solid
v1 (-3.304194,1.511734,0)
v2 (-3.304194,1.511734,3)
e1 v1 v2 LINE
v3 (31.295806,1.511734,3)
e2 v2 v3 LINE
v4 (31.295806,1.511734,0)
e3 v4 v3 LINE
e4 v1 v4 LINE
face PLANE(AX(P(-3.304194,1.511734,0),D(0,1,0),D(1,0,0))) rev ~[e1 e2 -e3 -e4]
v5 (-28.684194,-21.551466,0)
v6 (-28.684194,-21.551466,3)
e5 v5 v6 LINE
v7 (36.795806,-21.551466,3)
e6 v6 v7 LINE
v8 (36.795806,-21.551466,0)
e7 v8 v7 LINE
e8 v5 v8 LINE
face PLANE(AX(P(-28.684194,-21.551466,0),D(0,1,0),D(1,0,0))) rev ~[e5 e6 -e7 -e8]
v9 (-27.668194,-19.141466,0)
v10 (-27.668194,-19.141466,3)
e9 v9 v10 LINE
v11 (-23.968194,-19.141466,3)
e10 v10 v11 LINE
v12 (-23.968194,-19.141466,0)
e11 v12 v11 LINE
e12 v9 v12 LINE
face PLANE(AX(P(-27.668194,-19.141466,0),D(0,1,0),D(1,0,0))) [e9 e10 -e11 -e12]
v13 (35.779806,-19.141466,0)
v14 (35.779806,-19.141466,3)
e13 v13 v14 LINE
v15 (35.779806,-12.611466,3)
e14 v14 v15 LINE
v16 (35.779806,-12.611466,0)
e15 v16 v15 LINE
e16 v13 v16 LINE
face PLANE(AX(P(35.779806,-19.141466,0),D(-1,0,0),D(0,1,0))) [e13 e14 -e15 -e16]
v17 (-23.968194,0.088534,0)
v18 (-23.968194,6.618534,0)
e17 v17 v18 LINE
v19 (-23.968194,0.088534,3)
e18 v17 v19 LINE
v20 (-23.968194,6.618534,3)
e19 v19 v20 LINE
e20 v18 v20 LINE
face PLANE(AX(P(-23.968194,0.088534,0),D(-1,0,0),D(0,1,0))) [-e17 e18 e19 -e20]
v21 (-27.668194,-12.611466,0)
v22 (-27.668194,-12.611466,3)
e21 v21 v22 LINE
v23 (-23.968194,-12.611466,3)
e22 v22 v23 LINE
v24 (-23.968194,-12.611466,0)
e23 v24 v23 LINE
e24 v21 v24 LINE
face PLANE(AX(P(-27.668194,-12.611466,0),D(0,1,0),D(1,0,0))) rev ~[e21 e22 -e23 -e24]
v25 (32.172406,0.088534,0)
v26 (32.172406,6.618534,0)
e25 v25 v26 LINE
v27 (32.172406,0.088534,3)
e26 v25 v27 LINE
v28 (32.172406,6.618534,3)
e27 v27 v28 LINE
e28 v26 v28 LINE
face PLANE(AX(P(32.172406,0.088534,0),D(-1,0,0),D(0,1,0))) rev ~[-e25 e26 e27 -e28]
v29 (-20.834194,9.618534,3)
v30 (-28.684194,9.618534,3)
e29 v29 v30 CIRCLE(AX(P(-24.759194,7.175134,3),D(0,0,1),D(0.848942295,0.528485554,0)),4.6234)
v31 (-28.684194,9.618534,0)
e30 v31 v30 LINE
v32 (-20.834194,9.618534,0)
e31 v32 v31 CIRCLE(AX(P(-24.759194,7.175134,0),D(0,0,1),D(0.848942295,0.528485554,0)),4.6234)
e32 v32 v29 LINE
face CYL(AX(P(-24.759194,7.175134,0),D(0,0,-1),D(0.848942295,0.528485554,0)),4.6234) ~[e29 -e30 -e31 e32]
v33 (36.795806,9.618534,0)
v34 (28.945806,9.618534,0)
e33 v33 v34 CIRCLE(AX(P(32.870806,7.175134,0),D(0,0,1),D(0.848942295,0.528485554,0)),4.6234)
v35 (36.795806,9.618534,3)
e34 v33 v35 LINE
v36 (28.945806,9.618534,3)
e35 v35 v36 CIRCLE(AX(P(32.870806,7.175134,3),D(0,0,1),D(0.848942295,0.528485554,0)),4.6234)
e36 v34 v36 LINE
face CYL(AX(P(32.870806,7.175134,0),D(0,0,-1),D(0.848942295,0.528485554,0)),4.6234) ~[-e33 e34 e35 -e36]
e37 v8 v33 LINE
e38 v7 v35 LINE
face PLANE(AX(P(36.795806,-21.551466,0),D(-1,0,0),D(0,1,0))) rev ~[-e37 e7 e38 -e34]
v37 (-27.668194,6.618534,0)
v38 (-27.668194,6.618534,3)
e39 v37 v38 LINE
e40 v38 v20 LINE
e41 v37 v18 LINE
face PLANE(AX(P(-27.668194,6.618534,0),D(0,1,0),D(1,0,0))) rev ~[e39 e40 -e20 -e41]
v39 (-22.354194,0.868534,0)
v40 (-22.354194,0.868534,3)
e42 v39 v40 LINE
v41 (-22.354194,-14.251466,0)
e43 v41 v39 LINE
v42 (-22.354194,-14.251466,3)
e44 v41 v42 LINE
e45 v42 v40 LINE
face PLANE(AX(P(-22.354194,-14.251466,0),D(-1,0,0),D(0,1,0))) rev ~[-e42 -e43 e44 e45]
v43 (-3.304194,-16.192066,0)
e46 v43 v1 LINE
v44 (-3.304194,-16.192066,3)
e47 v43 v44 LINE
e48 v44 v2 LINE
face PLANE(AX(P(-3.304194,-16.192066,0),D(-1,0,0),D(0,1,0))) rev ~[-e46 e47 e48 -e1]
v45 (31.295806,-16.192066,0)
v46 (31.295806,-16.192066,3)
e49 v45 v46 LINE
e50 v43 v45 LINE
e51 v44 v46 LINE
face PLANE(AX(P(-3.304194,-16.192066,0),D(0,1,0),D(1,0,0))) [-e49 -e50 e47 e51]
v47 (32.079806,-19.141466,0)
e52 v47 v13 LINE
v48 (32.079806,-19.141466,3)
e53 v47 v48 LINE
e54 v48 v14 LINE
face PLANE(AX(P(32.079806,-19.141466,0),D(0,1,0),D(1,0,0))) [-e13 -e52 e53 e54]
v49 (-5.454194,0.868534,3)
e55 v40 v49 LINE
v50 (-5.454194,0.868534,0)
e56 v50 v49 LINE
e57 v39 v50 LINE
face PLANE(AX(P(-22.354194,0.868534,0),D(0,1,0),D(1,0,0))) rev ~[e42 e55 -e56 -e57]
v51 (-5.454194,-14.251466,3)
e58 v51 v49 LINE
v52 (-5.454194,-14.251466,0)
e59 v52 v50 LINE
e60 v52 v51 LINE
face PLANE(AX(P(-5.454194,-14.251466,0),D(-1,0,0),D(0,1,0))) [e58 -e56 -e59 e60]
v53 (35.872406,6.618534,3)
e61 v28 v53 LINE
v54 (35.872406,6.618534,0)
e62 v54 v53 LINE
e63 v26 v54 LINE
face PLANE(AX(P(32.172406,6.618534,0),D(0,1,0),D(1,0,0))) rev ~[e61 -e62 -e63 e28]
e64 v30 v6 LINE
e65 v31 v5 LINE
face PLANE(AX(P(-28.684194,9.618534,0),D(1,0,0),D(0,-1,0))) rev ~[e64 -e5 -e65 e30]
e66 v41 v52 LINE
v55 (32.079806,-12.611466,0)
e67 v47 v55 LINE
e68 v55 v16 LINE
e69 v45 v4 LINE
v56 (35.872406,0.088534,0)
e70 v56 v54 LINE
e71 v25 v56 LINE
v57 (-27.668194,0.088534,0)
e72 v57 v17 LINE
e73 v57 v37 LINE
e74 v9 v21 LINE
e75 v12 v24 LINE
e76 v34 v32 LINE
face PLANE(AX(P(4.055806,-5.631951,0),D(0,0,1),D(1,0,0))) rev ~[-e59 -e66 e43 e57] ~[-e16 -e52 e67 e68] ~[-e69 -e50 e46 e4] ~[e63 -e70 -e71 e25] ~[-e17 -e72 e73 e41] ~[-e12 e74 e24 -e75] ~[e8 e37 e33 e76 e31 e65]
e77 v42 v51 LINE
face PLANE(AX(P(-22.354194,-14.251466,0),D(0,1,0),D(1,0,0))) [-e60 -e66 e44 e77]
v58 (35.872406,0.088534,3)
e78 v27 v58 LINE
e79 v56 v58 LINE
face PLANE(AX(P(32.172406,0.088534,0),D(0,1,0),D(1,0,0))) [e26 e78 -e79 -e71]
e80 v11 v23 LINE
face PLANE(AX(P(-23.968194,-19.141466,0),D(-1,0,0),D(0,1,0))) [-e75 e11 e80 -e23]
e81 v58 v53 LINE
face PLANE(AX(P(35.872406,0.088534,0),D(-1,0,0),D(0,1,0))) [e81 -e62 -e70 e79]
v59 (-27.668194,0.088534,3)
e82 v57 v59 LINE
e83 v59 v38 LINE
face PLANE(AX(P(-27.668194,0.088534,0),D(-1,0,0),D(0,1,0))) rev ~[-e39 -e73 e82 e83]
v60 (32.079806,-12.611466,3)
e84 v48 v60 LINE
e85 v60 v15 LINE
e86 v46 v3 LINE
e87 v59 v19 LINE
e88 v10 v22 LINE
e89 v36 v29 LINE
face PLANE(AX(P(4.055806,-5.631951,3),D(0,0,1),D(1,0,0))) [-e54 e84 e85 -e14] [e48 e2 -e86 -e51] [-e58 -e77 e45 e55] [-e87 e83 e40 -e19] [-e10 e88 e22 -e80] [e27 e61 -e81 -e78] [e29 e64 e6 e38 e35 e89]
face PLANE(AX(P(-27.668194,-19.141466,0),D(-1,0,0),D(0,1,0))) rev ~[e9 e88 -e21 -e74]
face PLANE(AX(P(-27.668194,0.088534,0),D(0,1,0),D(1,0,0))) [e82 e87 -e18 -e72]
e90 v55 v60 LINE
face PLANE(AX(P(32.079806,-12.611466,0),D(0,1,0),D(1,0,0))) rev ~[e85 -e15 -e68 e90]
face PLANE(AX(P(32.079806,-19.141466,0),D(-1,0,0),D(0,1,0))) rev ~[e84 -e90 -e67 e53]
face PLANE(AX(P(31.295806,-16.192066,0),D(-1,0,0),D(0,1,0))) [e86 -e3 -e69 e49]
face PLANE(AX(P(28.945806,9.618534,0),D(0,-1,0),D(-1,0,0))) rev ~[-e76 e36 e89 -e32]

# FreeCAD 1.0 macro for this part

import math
import FreeCAD as App
import Part
import Sketcher

V = App.Vector
Q = App.Units.Quantity

doc = App.newDocument("Part")
params = doc.addObject("Spreadsheet::Sheet", "Params")
for row, (alias, value) in enumerate([
    ("sketch1_width", "3.7 mm"),
    ("sketch1_width2", "16.9 mm"),
    ("sketch1_width3", "34.6 mm"),
    ("sketch1_width4", "65.48 mm"),
    ("sketch1_width5", "49.78 mm"),
    ("pad1_length", "3 mm"),
], start=1):
    params.set(f"A{row}", alias)
    params.set(f"B{row}", "=" + value)
    params.setAlias(f"B{row}", alias)

body = doc.addObject("PartDesign::Body", "Body")

sketch1 = body.newObject("Sketcher::SketchObject", "Sketch")
sketch1.AttachmentSupport = (doc.getObject("XY_Plane"), [""])
sketch1.MapMode = "FlatFace"
sketch1.addGeometry(Part.LineSegment(V(-28.7, 9.6, 0), V(-28.7, -21.6, 0)), False)
sketch1.addGeometry(Part.LineSegment(V(-28.7, -21.6, 0), V(36.8, -21.6, 0)), False)
sketch1.addGeometry(Part.LineSegment(V(36.8, -21.6, 0), V(36.8, 9.6, 0)), False)
sketch1.addGeometry(Part.ArcOfCircle(Part.Circle(V(32.9, 7.2, 0), V(0, 0, 1), 4.6), math.radians(32), math.radians(148)), False)
sketch1.addGeometry(Part.LineSegment(V(28.9, 9.6, 0), V(-20.8, 9.6, 0)), False)
sketch1.addGeometry(Part.ArcOfCircle(Part.Circle(V(-24.8, 7.2, 0), V(0, 0, 1), 4.6), math.radians(32), math.radians(148)), False)
sketch1.addGeometry(Part.LineSegment(V(-24, -19.1, 0), V(-27.7, -19.1, 0)), False)
sketch1.addGeometry(Part.LineSegment(V(-27.7, -19.1, 0), V(-27.7, -12.6, 0)), False)
sketch1.addGeometry(Part.LineSegment(V(-27.7, -12.6, 0), V(-24, -12.6, 0)), False)
sketch1.addGeometry(Part.LineSegment(V(-24, -12.6, 0), V(-24, -19.1, 0)), False)
sketch1.addGeometry(Part.LineSegment(V(-5.5, -14.3, 0), V(-22.4, -14.3, 0)), False)
sketch1.addGeometry(Part.LineSegment(V(-22.4, -14.3, 0), V(-22.4, 0.9, 0)), False)
sketch1.addGeometry(Part.LineSegment(V(-22.4, 0.9, 0), V(-5.5, 0.9, 0)), False)
sketch1.addGeometry(Part.LineSegment(V(-5.5, 0.9, 0), V(-5.5, -14.3, 0)), False)
sketch1.addGeometry(Part.LineSegment(V(35.8, -19.1, 0), V(32.1, -19.1, 0)), False)
sketch1.addGeometry(Part.LineSegment(V(32.1, -19.1, 0), V(32.1, -12.6, 0)), False)
sketch1.addGeometry(Part.LineSegment(V(32.1, -12.6, 0), V(35.8, -12.6, 0)), False)
sketch1.addGeometry(Part.LineSegment(V(35.8, -12.6, 0), V(35.8, -19.1, 0)), False)
sketch1.addGeometry(Part.LineSegment(V(31.3, -16.2, 0), V(-3.3, -16.2, 0)), False)
sketch1.addGeometry(Part.LineSegment(V(-3.3, -16.2, 0), V(-3.3, 1.5, 0)), False)
sketch1.addGeometry(Part.LineSegment(V(-3.3, 1.5, 0), V(31.3, 1.5, 0)), False)
sketch1.addGeometry(Part.LineSegment(V(31.3, 1.5, 0), V(31.3, -16.2, 0)), False)
sketch1.addGeometry(Part.LineSegment(V(-24, 0.1, 0), V(-27.7, 0.1, 0)), False)
sketch1.addGeometry(Part.LineSegment(V(-27.7, 0.1, 0), V(-27.7, 6.6, 0)), False)
sketch1.addGeometry(Part.LineSegment(V(-27.7, 6.6, 0), V(-24, 6.6, 0)), False)
sketch1.addGeometry(Part.LineSegment(V(-24, 6.6, 0), V(-24, 0.1, 0)), False)
sketch1.addGeometry(Part.LineSegment(V(35.9, 0.1, 0), V(32.2, 0.1, 0)), False)
sketch1.addGeometry(Part.LineSegment(V(32.2, 0.1, 0), V(32.2, 6.6, 0)), False)
sketch1.addGeometry(Part.LineSegment(V(32.2, 6.6, 0), V(35.9, 6.6, 0)), False)
sketch1.addGeometry(Part.LineSegment(V(35.9, 6.6, 0), V(35.9, 0.1, 0)), False)
sketch1.addConstraint(Sketcher.Constraint("Coincident", 0, 2, 1, 1))
sketch1.addConstraint(Sketcher.Constraint("Coincident", 1, 2, 2, 1))
sketch1.addConstraint(Sketcher.Constraint("Coincident", 2, 2, 3, 1))
sketch1.addConstraint(Sketcher.Constraint("Coincident", 3, 2, 4, 1))
sketch1.addConstraint(Sketcher.Constraint("Coincident", 4, 2, 5, 1))
sketch1.addConstraint(Sketcher.Constraint("Coincident", 5, 2, 0, 1))
sketch1.addConstraint(Sketcher.Constraint("Coincident", 6, 2, 7, 1))
sketch1.addConstraint(Sketcher.Constraint("Coincident", 7, 2, 8, 1))
sketch1.addConstraint(Sketcher.Constraint("Coincident", 8, 2, 9, 1))
sketch1.addConstraint(Sketcher.Constraint("Coincident", 9, 2, 6, 1))
sketch1.addConstraint(Sketcher.Constraint("Coincident", 10, 2, 11, 1))
sketch1.addConstraint(Sketcher.Constraint("Coincident", 11, 2, 12, 1))
sketch1.addConstraint(Sketcher.Constraint("Coincident", 12, 2, 13, 1))
sketch1.addConstraint(Sketcher.Constraint("Coincident", 13, 2, 10, 1))
sketch1.addConstraint(Sketcher.Constraint("Coincident", 14, 2, 15, 1))
sketch1.addConstraint(Sketcher.Constraint("Coincident", 15, 2, 16, 1))
sketch1.addConstraint(Sketcher.Constraint("Coincident", 16, 2, 17, 1))
sketch1.addConstraint(Sketcher.Constraint("Coincident", 17, 2, 14, 1))
sketch1.addConstraint(Sketcher.Constraint("Coincident", 18, 2, 19, 1))
sketch1.addConstraint(Sketcher.Constraint("Coincident", 19, 2, 20, 1))
sketch1.addConstraint(Sketcher.Constraint("Coincident", 20, 2, 21, 1))
sketch1.addConstraint(Sketcher.Constraint("Coincident", 21, 2, 18, 1))
sketch1.addConstraint(Sketcher.Constraint("Coincident", 22, 2, 23, 1))
sketch1.addConstraint(Sketcher.Constraint("Coincident", 23, 2, 24, 1))
sketch1.addConstraint(Sketcher.Constraint("Coincident", 24, 2, 25, 1))
sketch1.addConstraint(Sketcher.Constraint("Coincident", 25, 2, 22, 1))
sketch1.addConstraint(Sketcher.Constraint("Coincident", 26, 2, 27, 1))
sketch1.addConstraint(Sketcher.Constraint("Coincident", 27, 2, 28, 1))
sketch1.addConstraint(Sketcher.Constraint("Coincident", 28, 2, 29, 1))
sketch1.addConstraint(Sketcher.Constraint("Coincident", 29, 2, 26, 1))
sketch1.addConstraint(Sketcher.Constraint("Vertical", 0))
sketch1.addConstraint(Sketcher.Constraint("Horizontal", 1))
sketch1.addConstraint(Sketcher.Constraint("Vertical", 2))
sketch1.addConstraint(Sketcher.Constraint("Horizontal", 4))
sketch1.addConstraint(Sketcher.Constraint("Horizontal", 6))
sketch1.addConstraint(Sketcher.Constraint("Vertical", 7))
sketch1.addConstraint(Sketcher.Constraint("Horizontal", 8))
sketch1.addConstraint(Sketcher.Constraint("Vertical", 9))
sketch1.addConstraint(Sketcher.Constraint("Horizontal", 10))
sketch1.addConstraint(Sketcher.Constraint("Vertical", 11))
sketch1.addConstraint(Sketcher.Constraint("Horizontal", 12))
sketch1.addConstraint(Sketcher.Constraint("Vertical", 13))
sketch1.addConstraint(Sketcher.Constraint("Horizontal", 14))
sketch1.addConstraint(Sketcher.Constraint("Vertical", 15))
sketch1.addConstraint(Sketcher.Constraint("Horizontal", 16))
sketch1.addConstraint(Sketcher.Constraint("Vertical", 17))
sketch1.addConstraint(Sketcher.Constraint("Horizontal", 18))
sketch1.addConstraint(Sketcher.Constraint("Vertical", 19))
sketch1.addConstraint(Sketcher.Constraint("Horizontal", 20))
sketch1.addConstraint(Sketcher.Constraint("Vertical", 21))
sketch1.addConstraint(Sketcher.Constraint("Horizontal", 22))
sketch1.addConstraint(Sketcher.Constraint("Vertical", 23))
sketch1.addConstraint(Sketcher.Constraint("Horizontal", 24))
sketch1.addConstraint(Sketcher.Constraint("Vertical", 25))
sketch1.addConstraint(Sketcher.Constraint("Horizontal", 26))
sketch1.addConstraint(Sketcher.Constraint("Vertical", 27))
sketch1.addConstraint(Sketcher.Constraint("Horizontal", 28))
sketch1.addConstraint(Sketcher.Constraint("Vertical", 29))
sketch1.addConstraint(Sketcher.Constraint("Equal", 3, 5))
sketch1.addConstraint(Sketcher.Constraint("Horizontal", 3, 3, 5, 3))
sketch1.addConstraint(Sketcher.Constraint("Horizontal", 2, 2, 3, 2))
sketch1.addConstraint(Sketcher.Constraint("Horizontal", 4, 2, 5, 2))
sketch1.addConstraint(Sketcher.Constraint("Horizontal", 9, 2, 14, 2))
sketch1.addConstraint(Sketcher.Constraint("Horizontal", 8, 2, 15, 2))
sketch1.addConstraint(Sketcher.Constraint("Horizontal", 25, 2, 26, 2))
sketch1.addConstraint(Sketcher.Constraint("Horizontal", 24, 2, 27, 2))
sketch1.addConstraint(Sketcher.Constraint("Vertical", 7, 2, 22, 2))
sketch1.addConstraint(Sketcher.Constraint("Vertical", 9, 2, 24, 2))
sketch1.addConstraint(Sketcher.Constraint("Equal", 8, 14))
sketch1.addConstraint(Sketcher.Constraint("Equal", 24, 26))
sketch1.addConstraint(Sketcher.Constraint("Equal", 17, 23))
sketch1.addConstraint(Sketcher.Constraint("DistanceX", 6, 2, 6, 1, Q("3.7 mm")))
sketch1.addConstraint(Sketcher.Constraint("DistanceX", 10, 2, 10, 1, Q("16.9 mm")))
sketch1.addConstraint(Sketcher.Constraint("DistanceX", 18, 2, 18, 1, Q("34.6 mm")))
sketch1.addConstraint(Sketcher.Constraint("DistanceY", 23, 2, 5, 2, Q("3 mm")))
sketch1.addConstraint(Sketcher.Constraint("DistanceX", 1, 1, 1, 2, Q("65.48 mm")))
sketch1.addConstraint(Sketcher.Constraint("DistanceX", 4, 2, 4, 1, Q("49.78 mm")))
sketch1.addConstraint(Sketcher.Constraint("DistanceY", 0, 2, 0, 1, Q("31.17 mm")))
sketch1.addConstraint(Sketcher.Constraint("DistanceY", 7, 1, 7, 2, Q("6.53 mm")))
sketch1.addConstraint(Sketcher.Constraint("DistanceY", 11, 1, 11, 2, Q("15.12 mm")))
sketch1.addConstraint(Sketcher.Constraint("Radius", 3, Q("4.6234 mm")))
sketch1.addConstraint(Sketcher.Constraint("DistanceY", 0, 2, 10, 2, Q("7.3 mm")))
sketch1.addConstraint(Sketcher.Constraint("DistanceX", 20, 2, 2, 2, Q("5.5 mm")))
sketch1.addConstraint(Sketcher.Constraint("DistanceY", 7, 2, 22, 2, Q("12.7 mm")))
sketch1.addConstraint(Sketcher.Constraint("DistanceX", 0, 2, 10, 2, Q("6.33 mm")))
sketch1.addConstraint(Sketcher.Constraint("DistanceY", 19, 1, 19, 2, Q("17.7038 mm")))
sketch1.addConstraint(Sketcher.Constraint("DistanceX", 0, 2, 6, 2, Q("1.016 mm")))
sketch1.addConstraint(Sketcher.Constraint("DistanceX", 14, 2, 1, 2, Q("4.716 mm")))
sketch1.addConstraint(Sketcher.Constraint("DistanceY", 18, 2, 13, 2, Q("1.9406 mm")))
sketch1.addConstraint(Sketcher.Constraint("DistanceX", 20, 2, 26, 2, Q("0.8766 mm")))
sketch1.addConstraint(Sketcher.Constraint("DistanceX", -1, 1, 3, 3, Q("32.870806 mm")))
sketch1.addConstraint(Sketcher.Constraint("DistanceY", -1, 1, 3, 3, Q("7.175134 mm")))
sketch1.setExpression("Constraints[71]", "Params.sketch1_width")
sketch1.setExpression("Constraints[72]", "Params.sketch1_width2")
sketch1.setExpression("Constraints[73]", "Params.sketch1_width3")
sketch1.setExpression("Constraints[75]", "Params.sketch1_width4")
sketch1.setExpression("Constraints[76]", "Params.sketch1_width5")
pad1 = body.newObject("PartDesign::Pad", "Pad")
pad1.Profile = sketch1
pad1.setExpression("Length", "Params.pad1_length")

doc.recompute()
